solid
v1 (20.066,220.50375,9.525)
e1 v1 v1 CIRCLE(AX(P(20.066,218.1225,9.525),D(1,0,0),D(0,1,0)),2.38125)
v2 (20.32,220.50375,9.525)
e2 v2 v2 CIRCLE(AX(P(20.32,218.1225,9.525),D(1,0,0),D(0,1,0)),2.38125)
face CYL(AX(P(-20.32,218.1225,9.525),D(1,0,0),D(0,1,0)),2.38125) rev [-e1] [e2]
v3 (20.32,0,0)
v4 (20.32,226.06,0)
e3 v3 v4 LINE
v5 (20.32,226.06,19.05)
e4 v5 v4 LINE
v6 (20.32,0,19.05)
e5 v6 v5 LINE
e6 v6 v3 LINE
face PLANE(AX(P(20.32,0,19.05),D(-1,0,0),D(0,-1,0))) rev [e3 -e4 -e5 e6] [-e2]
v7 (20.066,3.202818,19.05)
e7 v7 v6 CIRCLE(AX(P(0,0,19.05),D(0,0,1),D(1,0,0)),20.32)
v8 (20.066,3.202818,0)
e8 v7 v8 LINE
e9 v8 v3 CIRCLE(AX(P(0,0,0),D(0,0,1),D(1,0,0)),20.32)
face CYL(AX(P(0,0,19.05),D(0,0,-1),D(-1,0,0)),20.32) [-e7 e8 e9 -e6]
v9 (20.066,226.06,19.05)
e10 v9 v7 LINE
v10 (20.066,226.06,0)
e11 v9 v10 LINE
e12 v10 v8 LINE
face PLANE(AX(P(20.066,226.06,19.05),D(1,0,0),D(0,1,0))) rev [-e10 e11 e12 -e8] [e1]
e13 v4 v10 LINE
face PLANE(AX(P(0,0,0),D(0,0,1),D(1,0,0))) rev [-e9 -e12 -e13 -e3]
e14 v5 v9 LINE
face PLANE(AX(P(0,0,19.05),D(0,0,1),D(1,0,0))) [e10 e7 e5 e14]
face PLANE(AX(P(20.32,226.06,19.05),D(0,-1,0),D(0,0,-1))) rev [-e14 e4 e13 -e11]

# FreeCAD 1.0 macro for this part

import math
import FreeCAD as App
import Part
import Sketcher
from FreeCAD import Vector
Q = App.Units.Quantity

doc = App.newDocument("Part")
params = doc.addObject("Spreadsheet::Sheet", "Params")
for row, (alias, value) in enumerate([
    ("sketch1_radius", "0.8 in"),
    ("sketch1_height", "8.9 in"),
    ("sketch1_width", "0.01 in"),
    ("pad1_length", "0.75 in"),
    ("sketch2_diameter", "0.1875 in"),
    ("pocket1_length", "0.01 in"),
], start=1):
    params.set(f"A{row}", alias)
    params.set(f"B{row}", "=" + value)
    params.setAlias(f"B{row}", alias)

body = doc.addObject("PartDesign::Body", "Body")

sketch1 = doc.addObject("Sketcher::SketchObject", "Sketch")
body.addObject(sketch1)
sketch1.AttachmentSupport = (doc.XY_Plane, [""])
sketch1.MapMode = "FlatFace"
sketch1.addGeometry(Part.LineSegment(Vector(20.32, 0, 0), Vector(20.32, 226.06, 0)), False)
sketch1.addGeometry(Part.LineSegment(Vector(20.32, 226.06, 0), Vector(20.066, 226.06, 0)), False)
sketch1.addGeometry(Part.LineSegment(Vector(20.066, 226.06, 0), Vector(20.066, 3.202818, 0)), False)
sketch1.addGeometry(Part.ArcOfCircle(Part.Circle(Vector(0, 0, 0), Vector(0, 0, 1), 20.32), math.radians(9.068722), math.radians(360)), False)
sketch1.addConstraint(Sketcher.Constraint("Coincident", 0, 2, 1, 1))
sketch1.addConstraint(Sketcher.Constraint("Coincident", 1, 2, 2, 1))
sketch1.addConstraint(Sketcher.Constraint("Coincident", 2, 2, 3, 1))
sketch1.addConstraint(Sketcher.Constraint("Tangent", 3, 2, 0, 1))
sketch1.addConstraint(Sketcher.Constraint("Vertical", 0))
sketch1.addConstraint(Sketcher.Constraint("Horizontal", 1))
sketch1.addConstraint(Sketcher.Constraint("Vertical", 2))
sketch1.addConstraint(Sketcher.Constraint("Coincident", 3, 3, -1, 1))
sketch1.addConstraint(Sketcher.Constraint("Radius", 3, Q("0.8 in")))
sketch1.addConstraint(Sketcher.Constraint("DistanceY", 0, 1, 0, 2, Q("8.9 in")))
sketch1.addConstraint(Sketcher.Constraint("DistanceX", 1, 2, 1, 1, Q("0.01 in")))
sketch1.setExpression("Constraints[8]", "Params.sketch1_radius")
sketch1.setExpression("Constraints[9]", "Params.sketch1_height")
sketch1.setExpression("Constraints[10]", "Params.sketch1_width")
pad1 = doc.addObject("PartDesign::Pad", "Pad")
body.addObject(pad1)
pad1.Profile = sketch1
pad1.setExpression("Length", "Params.pad1_length")

sketch2 = doc.addObject("Sketcher::SketchObject", "Sketch001")
body.addObject(sketch2)
sketch2.AttachmentSupport = (doc.YZ_Plane, [""])
sketch2.MapMode = "FlatFace"
sketch2.AttachmentOffset = App.Placement(Vector(0, 0, 0.8 * 25.4), App.Rotation())
sketch2.addGeometry(Part.Circle(Vector(218.1225, 9.525, 0), Vector(0, 0, 1), 2.38125), False)
sketch2.addConstraint(Sketcher.Constraint("Diameter", 0, Q("0.1875 in")))
sketch2.addConstraint(Sketcher.Constraint("DistanceY", -1, 1, 0, 3, Q("0.375 in")))
sketch2.addConstraint(Sketcher.Constraint("DistanceX", -1, 1, 0, 3, Q("8.5875 in")))
sketch2.setExpression("Constraints[0]", "Params.sketch2_diameter")
pocket1 = doc.addObject("PartDesign::Pocket", "Pocket")
body.addObject(pocket1)
pocket1.Profile = sketch2
pocket1.setExpression("Length", "Params.pocket1_length")

doc.recompute()
